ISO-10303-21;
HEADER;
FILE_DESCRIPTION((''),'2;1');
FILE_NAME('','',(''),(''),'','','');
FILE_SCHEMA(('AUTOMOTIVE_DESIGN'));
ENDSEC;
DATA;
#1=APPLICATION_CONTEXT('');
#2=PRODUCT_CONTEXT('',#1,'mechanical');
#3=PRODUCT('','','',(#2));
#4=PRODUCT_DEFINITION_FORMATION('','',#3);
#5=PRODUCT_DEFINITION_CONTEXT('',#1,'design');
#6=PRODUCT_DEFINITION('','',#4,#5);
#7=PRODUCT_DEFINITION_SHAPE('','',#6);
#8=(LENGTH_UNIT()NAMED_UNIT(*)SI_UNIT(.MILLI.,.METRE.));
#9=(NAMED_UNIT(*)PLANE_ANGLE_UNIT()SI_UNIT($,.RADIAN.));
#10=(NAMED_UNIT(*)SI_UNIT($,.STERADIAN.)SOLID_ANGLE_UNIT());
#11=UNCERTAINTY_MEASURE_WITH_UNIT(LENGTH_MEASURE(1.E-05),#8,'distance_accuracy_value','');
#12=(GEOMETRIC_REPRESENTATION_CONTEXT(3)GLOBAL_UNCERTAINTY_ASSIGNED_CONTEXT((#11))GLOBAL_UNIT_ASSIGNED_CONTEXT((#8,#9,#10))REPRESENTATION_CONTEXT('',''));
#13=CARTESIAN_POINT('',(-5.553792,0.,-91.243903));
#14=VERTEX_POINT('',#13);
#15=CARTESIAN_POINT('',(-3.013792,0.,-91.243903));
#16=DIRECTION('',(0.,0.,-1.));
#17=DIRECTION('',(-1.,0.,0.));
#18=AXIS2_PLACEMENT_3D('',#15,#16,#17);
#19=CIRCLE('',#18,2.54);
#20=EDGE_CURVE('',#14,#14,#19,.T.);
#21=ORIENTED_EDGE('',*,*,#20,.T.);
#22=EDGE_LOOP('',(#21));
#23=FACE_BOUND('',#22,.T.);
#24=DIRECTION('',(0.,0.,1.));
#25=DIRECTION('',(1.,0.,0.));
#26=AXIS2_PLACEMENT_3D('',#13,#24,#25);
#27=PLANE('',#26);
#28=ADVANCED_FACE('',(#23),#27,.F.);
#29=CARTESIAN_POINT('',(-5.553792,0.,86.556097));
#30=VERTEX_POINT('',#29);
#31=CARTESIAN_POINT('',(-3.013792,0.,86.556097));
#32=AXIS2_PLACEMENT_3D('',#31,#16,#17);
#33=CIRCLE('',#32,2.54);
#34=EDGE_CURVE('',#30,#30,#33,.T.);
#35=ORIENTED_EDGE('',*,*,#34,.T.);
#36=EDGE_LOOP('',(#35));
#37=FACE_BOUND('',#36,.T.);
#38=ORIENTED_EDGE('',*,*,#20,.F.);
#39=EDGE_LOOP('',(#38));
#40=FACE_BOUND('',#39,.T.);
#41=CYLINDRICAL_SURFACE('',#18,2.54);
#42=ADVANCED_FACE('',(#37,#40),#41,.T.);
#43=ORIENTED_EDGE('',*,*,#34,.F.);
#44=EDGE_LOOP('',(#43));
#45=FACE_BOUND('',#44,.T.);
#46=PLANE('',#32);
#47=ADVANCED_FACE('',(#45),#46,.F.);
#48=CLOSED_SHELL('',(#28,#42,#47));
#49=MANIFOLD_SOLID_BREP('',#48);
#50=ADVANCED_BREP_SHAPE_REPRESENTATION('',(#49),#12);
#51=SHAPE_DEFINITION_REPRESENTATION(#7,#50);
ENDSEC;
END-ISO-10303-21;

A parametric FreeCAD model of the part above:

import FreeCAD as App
import Part
import Sketcher

V = App.Vector
Q = App.Units.Quantity

doc = App.newDocument("Part")
body = doc.addObject("PartDesign::Body", "Body")

# Sketch on XZ plane
sketch1 = body.newObject("Sketcher::SketchObject", "Sketch")
sketch1.AttachmentSupport = (doc.getObject("XZ_Plane"), [""])
sketch1.MapMode = "FlatFace"
sketch1.addGeometry([
    Part.LineSegment(V(-3, -91.2, 0), V(-3, 86.6, 0)),
    Part.LineSegment(V(-3, 86.6, 0), V(-0.5, 86.6, 0)),
    Part.LineSegment(V(-0.5, 86.6, 0), V(-0.5, -91.2, 0)),
    Part.LineSegment(V(-0.5, -91.2, 0), V(-3, -91.2, 0)),
], False)
sketch1.addGeometry(Part.LineSegment(V(-3, -91.2, 0), V(-3, 86.6, 0)), True)  # axis
sketch1.addConstraint([
    Sketcher.Constraint("Coincident", 0, 2, 1, 1),
    Sketcher.Constraint("Coincident", 1, 2, 2, 1),
    Sketcher.Constraint("Coincident", 2, 2, 3, 1),
    Sketcher.Constraint("Coincident", 3, 2, 0, 1),
    Sketcher.Constraint("Vertical", 0),
    Sketcher.Constraint("Horizontal", 1),
    Sketcher.Constraint("Vertical", 2),
    Sketcher.Constraint("Horizontal", 3),
    Sketcher.Constraint("Vertical", 4),
    Sketcher.Constraint("Coincident", 4, 1, 3, 2),
    Sketcher.Constraint("Horizontal", 1, 2, 4, 2),
    Sketcher.Constraint("DistanceY", 0, 1, 0, 2, Q("7 in")),
    Sketcher.Constraint("DistanceX", 1, 1, 1, 2, Q("0.1 in")),
    Sketcher.Constraint("DistanceX", 0, 2, -1, 1, Q("3.013792 mm")),
    Sketcher.Constraint("DistanceY", -1, 1, 0, 2, Q("86.556097 mm")),
])
revolution = body.newObject("PartDesign::Revolution", "Revolution")
revolution.Profile = sketch1
revolution.ReferenceAxis = (sketch1, ["Axis0"])
revolution.Angle = 360

doc.recompute()
